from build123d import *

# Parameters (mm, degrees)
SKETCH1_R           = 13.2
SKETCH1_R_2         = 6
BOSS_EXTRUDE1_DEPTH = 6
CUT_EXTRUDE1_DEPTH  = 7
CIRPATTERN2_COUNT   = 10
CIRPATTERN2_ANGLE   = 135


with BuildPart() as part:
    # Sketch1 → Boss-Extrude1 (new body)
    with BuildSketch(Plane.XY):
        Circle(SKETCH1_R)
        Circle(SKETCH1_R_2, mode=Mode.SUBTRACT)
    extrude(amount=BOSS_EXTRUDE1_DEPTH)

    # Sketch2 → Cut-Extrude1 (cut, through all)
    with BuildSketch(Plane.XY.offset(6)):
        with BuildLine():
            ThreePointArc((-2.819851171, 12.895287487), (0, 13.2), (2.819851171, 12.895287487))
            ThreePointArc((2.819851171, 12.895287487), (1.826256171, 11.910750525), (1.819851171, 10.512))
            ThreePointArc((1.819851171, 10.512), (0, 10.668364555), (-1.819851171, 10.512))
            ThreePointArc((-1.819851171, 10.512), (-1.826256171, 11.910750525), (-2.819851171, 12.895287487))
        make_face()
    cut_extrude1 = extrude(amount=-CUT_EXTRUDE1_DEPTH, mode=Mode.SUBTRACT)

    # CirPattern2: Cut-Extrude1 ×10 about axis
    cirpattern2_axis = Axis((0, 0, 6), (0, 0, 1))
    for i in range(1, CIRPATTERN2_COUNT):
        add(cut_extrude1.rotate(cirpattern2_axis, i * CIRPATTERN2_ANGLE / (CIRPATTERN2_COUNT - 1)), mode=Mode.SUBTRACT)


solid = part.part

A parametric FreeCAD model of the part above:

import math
import FreeCAD as App
import Part
import Sketcher

V = App.Vector
Q = App.Units.Quantity

doc = App.newDocument("Part")
params = doc.addObject("Spreadsheet::Sheet", "Params")
for row, (alias, value) in enumerate([
    ("sketch1_diameter", "12 mm"),
    ("sketch1_diameter2", "26.4 mm"),
    ("pad1_length", "6 mm"),
    ("sketch2_radius", "13.2 mm"),
], start=1):
    params.set(f"A{row}", alias)
    params.set(f"B{row}", "=" + value)
    params.setAlias(f"B{row}", alias)

body = doc.addObject("PartDesign::Body", "Body")

# Sketch on XY plane
sketch1 = body.newObject("Sketcher::SketchObject", "Sketch")
sketch1.AttachmentSupport = (doc.getObject("XY_Plane"), [""])
sketch1.MapMode = "FlatFace"
sketch1.addGeometry(Part.Circle(V(0, 0, 0), V(0, 0, 1), 13), False)
sketch1.addGeometry(Part.Circle(V(0, 0, 0), V(0, 0, 1), 6), False)
sketch1.addConstraint(Sketcher.Constraint("Coincident", 0, 3, -1, 1))
sketch1.addConstraint(Sketcher.Constraint("Coincident", 1, 3, -1, 1))
sketch1.addConstraint(Sketcher.Constraint("Diameter", 1, Q("12 mm")))
sketch1.addConstraint(Sketcher.Constraint("Diameter", 0, Q("26.4 mm")))
sketch1.setExpression("Constraints[2]", "Params.sketch1_diameter")
sketch1.setExpression("Constraints[3]", "Params.sketch1_diameter2")
pad1 = body.newObject("PartDesign::Pad", "Pad")
pad1.Profile = sketch1
pad1.setExpression("Length", "Params.pad1_length")

# Sketch on XY plane
sketch2 = body.newObject("Sketcher::SketchObject", "Sketch001")
sketch2.AttachmentSupport = (doc.getObject("XY_Plane"), [""])
sketch2.MapMode = "FlatFace"
sketch2.AttachmentOffset = App.Placement(V(0, 0, 6), App.Rotation())
sketch2.addGeometry(Part.ArcOfCircle(Part.Circle(V(0, 0, 0), V(0, 0, 1), 13.2), math.radians(78), math.radians(102)), False)
sketch2.addGeometry(Part.ArcOfCircle(Part.Circle(V(-3.5, 11.2, 0), V(0, 0, 1), 1.8), math.radians(-22), math.radians(68)), False)
sketch2.addGeometry(Part.ArcOfCircle(Part.Circle(V(0, 0, 0), V(0, 0, 1), 10.7), math.radians(80.18), math.radians(99.82)), False)
sketch2.addGeometry(Part.ArcOfCircle(Part.Circle(V(3.5, 11.2, 0), V(0, 0, 1), 1.8), math.radians(112), math.radians(202)), False)
sketch2.addConstraint(Sketcher.Constraint("Coincident", 0, 2, 1, 2))
sketch2.addConstraint(Sketcher.Constraint("Coincident", 1, 1, 2, 2))
sketch2.addConstraint(Sketcher.Constraint("Coincident", 2, 1, 3, 2))
sketch2.addConstraint(Sketcher.Constraint("Coincident", 3, 1, 0, 1))
sketch2.addConstraint(Sketcher.Constraint("Coincident", 0, 3, -1, 1))
sketch2.addConstraint(Sketcher.Constraint("Coincident", 2, 3, -1, 1))
sketch2.addConstraint(Sketcher.Constraint("Equal", 1, 3))
sketch2.addConstraint(Sketcher.Constraint("Symmetric", 1, 3, 3, 3, -2))
sketch2.addConstraint(Sketcher.Constraint("Radius", 0, Q("13.2 mm")))
sketch2.addConstraint(Sketcher.Constraint("DistanceX", 0, 2, 1, 1, Q("1 mm")))
sketch2.addConstraint(Sketcher.Constraint("DistanceY", -1, 1, 1, 1, Q("10.512 mm")))
sketch2.addConstraint(Sketcher.Constraint("Radius", 1, Q("1.827575 mm")))
sketch2.addConstraint(Sketcher.Constraint("Radius", 2, Q("10.668365 mm")))
sketch2.setExpression("Constraints[8]", "Params.sketch2_radius")
pocket1 = body.newObject("PartDesign::Pocket", "Pocket")
pocket1.Profile = sketch2
pocket1.Type = "ThroughAll"
doc.recompute()

polarpattern = body.newObject("PartDesign::PolarPattern", "PolarPattern")
polarpattern.Originals = [pocket1]
polarpattern.Axis = (doc.getObject("Z_Axis"), [""])
polarpattern.Angle = 135
polarpattern.Occurrences = 10
body.Tip = polarpattern

doc.recompute()
